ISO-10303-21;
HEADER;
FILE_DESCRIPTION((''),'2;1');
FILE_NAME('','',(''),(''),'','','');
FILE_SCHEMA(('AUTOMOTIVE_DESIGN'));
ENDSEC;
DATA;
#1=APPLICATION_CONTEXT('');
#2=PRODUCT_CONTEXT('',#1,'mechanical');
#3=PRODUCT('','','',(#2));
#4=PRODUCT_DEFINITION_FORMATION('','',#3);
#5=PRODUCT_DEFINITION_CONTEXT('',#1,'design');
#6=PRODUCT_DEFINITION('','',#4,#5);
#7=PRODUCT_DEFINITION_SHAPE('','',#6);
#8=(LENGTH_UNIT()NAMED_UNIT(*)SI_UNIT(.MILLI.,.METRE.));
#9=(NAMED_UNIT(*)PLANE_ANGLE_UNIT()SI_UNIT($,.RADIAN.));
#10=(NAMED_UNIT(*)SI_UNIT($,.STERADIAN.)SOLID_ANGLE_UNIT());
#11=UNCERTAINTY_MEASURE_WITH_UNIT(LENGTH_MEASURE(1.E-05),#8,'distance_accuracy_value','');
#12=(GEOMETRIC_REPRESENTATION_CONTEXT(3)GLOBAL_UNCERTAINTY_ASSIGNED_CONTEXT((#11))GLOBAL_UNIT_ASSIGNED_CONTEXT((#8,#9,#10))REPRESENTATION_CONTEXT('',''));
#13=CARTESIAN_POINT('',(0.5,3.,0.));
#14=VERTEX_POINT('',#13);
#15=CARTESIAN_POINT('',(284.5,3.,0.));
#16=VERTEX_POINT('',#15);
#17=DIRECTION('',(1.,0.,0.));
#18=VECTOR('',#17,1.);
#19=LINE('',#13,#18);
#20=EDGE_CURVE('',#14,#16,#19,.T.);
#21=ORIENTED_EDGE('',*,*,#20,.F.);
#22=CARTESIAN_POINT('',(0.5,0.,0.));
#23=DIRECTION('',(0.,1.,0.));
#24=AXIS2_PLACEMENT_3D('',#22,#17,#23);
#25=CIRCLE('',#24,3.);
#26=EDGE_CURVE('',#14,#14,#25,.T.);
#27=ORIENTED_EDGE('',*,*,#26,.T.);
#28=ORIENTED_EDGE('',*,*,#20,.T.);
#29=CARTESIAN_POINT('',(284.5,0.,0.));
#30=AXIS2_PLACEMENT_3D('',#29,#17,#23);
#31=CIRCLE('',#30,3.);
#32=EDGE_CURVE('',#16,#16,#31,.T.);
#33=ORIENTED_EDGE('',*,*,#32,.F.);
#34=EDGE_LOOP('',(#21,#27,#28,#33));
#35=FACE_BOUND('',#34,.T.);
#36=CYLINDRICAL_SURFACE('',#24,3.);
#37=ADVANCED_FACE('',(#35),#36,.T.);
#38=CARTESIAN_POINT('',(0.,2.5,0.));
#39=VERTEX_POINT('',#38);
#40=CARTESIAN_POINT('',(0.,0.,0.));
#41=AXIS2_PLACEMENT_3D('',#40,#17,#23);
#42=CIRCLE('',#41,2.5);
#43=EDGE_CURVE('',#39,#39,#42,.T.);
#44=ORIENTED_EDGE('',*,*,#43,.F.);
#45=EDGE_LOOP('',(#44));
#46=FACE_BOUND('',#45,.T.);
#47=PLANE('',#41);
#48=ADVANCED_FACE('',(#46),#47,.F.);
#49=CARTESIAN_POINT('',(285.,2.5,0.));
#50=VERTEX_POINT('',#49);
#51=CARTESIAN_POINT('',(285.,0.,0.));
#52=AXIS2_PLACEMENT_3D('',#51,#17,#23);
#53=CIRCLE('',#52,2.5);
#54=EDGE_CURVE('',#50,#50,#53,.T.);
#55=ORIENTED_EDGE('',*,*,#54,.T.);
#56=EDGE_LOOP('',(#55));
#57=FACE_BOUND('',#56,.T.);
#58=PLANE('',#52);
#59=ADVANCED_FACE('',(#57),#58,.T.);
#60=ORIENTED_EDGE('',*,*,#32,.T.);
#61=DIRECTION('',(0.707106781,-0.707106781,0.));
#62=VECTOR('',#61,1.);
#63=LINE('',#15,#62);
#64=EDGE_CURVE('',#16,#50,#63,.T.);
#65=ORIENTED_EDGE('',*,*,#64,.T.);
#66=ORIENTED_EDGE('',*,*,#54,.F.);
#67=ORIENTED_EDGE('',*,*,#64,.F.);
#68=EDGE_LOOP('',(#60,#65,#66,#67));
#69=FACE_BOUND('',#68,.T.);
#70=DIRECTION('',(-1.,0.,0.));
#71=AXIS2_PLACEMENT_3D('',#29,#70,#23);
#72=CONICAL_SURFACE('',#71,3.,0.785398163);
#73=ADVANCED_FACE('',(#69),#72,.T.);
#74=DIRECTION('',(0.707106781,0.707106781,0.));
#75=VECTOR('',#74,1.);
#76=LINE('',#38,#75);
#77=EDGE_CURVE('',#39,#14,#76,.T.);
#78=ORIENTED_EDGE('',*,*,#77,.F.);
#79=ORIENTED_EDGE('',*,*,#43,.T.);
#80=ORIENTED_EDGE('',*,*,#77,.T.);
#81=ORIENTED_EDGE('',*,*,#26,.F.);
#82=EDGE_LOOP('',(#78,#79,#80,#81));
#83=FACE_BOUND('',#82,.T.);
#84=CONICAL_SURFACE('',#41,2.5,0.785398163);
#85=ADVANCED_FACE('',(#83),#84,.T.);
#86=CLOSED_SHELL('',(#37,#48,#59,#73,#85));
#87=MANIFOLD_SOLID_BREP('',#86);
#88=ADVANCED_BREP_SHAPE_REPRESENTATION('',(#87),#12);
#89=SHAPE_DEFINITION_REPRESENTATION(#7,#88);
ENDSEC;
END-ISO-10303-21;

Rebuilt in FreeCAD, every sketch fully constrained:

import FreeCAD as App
import Part
import Sketcher

V = App.Vector
Q = App.Units.Quantity

doc = App.newDocument("Part")
body = doc.addObject("PartDesign::Body", "Body")

# Sketch on XY plane
sketch1 = doc.addObject("Sketcher::SketchObject", "Sketch")
body.addObject(sketch1)
sketch1.AttachmentSupport = (doc.XY_Plane, [""])
sketch1.MapMode = "FlatFace"
sketch1.addGeometry([
    Part.LineSegment(V(0, 0, 0), V(285, 0, 0)),  # 0
    Part.LineSegment(V(285, 0, 0), V(285, 2.5, 0)),  # 1
    Part.LineSegment(V(285, 2.5, 0), V(284.5, 3, 0)),  # 2
    Part.LineSegment(V(284.5, 3, 0), V(0.5, 3, 0)),  # 3
    Part.LineSegment(V(0.5, 3, 0), V(0, 2.5, 0)),  # 4
    Part.LineSegment(V(0, 2.5, 0), V(0, 0, 0)),  # 5
], False)
sketch1.addConstraint([
    Sketcher.Constraint("Coincident", 0, 2, 1, 1),
    Sketcher.Constraint("Coincident", 1, 2, 2, 1),
    Sketcher.Constraint("Coincident", 2, 2, 3, 1),
    Sketcher.Constraint("Coincident", 3, 2, 4, 1),
    Sketcher.Constraint("Coincident", 4, 2, 5, 1),
    Sketcher.Constraint("Coincident", 5, 2, 0, 1),
    Sketcher.Constraint("Horizontal", 0),
    Sketcher.Constraint("Vertical", 1),
    Sketcher.Constraint("Horizontal", 3),
    Sketcher.Constraint("Vertical", 5),
    Sketcher.Constraint("Coincident", 5, 2, -1, 1),
    Sketcher.Constraint("Perpendicular", 2, 4),
    Sketcher.Constraint("Horizontal", 1, 2, 4, 2),
    Sketcher.Constraint("Equal", 2, 4),
    Sketcher.Constraint("DistanceX", 0, 1, 0, 2, Q("285 mm")),
    Sketcher.Constraint("DistanceX", 3, 2, 3, 1, Q("284 mm")),
    Sketcher.Constraint("DistanceY", 1, 1, 1, 2, Q("2.5 mm")),
])
revolution = doc.addObject("PartDesign::Revolution", "Revolution")
body.addObject(revolution)
revolution.Profile = sketch1
revolution.ReferenceAxis = (sketch1, ["H_Axis"])
revolution.Angle = 360

doc.recompute()
